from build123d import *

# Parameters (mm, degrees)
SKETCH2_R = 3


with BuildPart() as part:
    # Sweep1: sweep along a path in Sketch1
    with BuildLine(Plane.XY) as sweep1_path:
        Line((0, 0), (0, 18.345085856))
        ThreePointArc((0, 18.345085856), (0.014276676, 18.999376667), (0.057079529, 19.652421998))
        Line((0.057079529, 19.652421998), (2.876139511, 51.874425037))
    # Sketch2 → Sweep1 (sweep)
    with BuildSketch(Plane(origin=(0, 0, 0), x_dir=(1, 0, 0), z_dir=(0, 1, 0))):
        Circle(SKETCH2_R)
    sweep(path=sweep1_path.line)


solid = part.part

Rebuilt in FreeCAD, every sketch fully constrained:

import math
import FreeCAD as App
import Part
import Sketcher
from FreeCAD import Vector
Q = App.Units.Quantity

doc = App.newDocument("Part")
body = doc.addObject("PartDesign::Body", "Body")

# Sketch on XZ plane
sketch1 = body.newObject("Sketcher::SketchObject", "Sketch")
sketch1.AttachmentSupport = (doc.getObject("XZ_Plane"), [""])
sketch1.MapMode = "FlatFace"
sketch1.addGeometry(Part.Circle(Vector(0, 0, 0), Vector(0, 0, 1), 3), False)
sketch1.addConstraint([
    Sketcher.Constraint("Coincident", 0, 3, -1, 1),
    Sketcher.Constraint("Diameter", 0, 6.0),
])

# Sketch on XY plane
sketch2 = body.newObject("Sketcher::SketchObject", "Sketch001")
sketch2.AttachmentSupport = (doc.getObject("XY_Plane"), [""])
sketch2.MapMode = "FlatFace"
sketch2.addGeometry([
    Part.LineSegment(Vector(0, 0, 0), Vector(0, 18.3, 0)),
    Part.ArcOfCircle(Part.Circle(Vector(15, 18.3, 0), Vector(0, 0, 1), 15), math.radians(175), math.radians(180)),
    Part.LineSegment(Vector(0.1, 19.7, 0), Vector(2.9, 51.9, 0)),
], False)
sketch2.addConstraint([
    Sketcher.Constraint("Tangent", 0, 2, 1, 2),
    Sketcher.Constraint("Tangent", 1, 1, 2, 1),
    Sketcher.Constraint("Vertical", 0),
    Sketcher.Constraint("Coincident", 0, 1, -1, 1),
    Sketcher.Constraint("Radius", 1, 15.0),
    Sketcher.Constraint("Angle", 2, Q("85 deg")),
    Sketcher.Constraint("DistanceY", 0, 1, 0, 2, 18.345086),
    Sketcher.Constraint("DistanceX", -1, 1, 2, 2, 2.87614),
])
doc.recompute()

additivepipe = body.newObject("PartDesign::AdditivePipe", "AdditivePipe")
additivepipe.Profile = sketch1
additivepipe.Spine = (sketch2, ["Edge1", "Edge2", "Edge3"])

doc.recompute()
